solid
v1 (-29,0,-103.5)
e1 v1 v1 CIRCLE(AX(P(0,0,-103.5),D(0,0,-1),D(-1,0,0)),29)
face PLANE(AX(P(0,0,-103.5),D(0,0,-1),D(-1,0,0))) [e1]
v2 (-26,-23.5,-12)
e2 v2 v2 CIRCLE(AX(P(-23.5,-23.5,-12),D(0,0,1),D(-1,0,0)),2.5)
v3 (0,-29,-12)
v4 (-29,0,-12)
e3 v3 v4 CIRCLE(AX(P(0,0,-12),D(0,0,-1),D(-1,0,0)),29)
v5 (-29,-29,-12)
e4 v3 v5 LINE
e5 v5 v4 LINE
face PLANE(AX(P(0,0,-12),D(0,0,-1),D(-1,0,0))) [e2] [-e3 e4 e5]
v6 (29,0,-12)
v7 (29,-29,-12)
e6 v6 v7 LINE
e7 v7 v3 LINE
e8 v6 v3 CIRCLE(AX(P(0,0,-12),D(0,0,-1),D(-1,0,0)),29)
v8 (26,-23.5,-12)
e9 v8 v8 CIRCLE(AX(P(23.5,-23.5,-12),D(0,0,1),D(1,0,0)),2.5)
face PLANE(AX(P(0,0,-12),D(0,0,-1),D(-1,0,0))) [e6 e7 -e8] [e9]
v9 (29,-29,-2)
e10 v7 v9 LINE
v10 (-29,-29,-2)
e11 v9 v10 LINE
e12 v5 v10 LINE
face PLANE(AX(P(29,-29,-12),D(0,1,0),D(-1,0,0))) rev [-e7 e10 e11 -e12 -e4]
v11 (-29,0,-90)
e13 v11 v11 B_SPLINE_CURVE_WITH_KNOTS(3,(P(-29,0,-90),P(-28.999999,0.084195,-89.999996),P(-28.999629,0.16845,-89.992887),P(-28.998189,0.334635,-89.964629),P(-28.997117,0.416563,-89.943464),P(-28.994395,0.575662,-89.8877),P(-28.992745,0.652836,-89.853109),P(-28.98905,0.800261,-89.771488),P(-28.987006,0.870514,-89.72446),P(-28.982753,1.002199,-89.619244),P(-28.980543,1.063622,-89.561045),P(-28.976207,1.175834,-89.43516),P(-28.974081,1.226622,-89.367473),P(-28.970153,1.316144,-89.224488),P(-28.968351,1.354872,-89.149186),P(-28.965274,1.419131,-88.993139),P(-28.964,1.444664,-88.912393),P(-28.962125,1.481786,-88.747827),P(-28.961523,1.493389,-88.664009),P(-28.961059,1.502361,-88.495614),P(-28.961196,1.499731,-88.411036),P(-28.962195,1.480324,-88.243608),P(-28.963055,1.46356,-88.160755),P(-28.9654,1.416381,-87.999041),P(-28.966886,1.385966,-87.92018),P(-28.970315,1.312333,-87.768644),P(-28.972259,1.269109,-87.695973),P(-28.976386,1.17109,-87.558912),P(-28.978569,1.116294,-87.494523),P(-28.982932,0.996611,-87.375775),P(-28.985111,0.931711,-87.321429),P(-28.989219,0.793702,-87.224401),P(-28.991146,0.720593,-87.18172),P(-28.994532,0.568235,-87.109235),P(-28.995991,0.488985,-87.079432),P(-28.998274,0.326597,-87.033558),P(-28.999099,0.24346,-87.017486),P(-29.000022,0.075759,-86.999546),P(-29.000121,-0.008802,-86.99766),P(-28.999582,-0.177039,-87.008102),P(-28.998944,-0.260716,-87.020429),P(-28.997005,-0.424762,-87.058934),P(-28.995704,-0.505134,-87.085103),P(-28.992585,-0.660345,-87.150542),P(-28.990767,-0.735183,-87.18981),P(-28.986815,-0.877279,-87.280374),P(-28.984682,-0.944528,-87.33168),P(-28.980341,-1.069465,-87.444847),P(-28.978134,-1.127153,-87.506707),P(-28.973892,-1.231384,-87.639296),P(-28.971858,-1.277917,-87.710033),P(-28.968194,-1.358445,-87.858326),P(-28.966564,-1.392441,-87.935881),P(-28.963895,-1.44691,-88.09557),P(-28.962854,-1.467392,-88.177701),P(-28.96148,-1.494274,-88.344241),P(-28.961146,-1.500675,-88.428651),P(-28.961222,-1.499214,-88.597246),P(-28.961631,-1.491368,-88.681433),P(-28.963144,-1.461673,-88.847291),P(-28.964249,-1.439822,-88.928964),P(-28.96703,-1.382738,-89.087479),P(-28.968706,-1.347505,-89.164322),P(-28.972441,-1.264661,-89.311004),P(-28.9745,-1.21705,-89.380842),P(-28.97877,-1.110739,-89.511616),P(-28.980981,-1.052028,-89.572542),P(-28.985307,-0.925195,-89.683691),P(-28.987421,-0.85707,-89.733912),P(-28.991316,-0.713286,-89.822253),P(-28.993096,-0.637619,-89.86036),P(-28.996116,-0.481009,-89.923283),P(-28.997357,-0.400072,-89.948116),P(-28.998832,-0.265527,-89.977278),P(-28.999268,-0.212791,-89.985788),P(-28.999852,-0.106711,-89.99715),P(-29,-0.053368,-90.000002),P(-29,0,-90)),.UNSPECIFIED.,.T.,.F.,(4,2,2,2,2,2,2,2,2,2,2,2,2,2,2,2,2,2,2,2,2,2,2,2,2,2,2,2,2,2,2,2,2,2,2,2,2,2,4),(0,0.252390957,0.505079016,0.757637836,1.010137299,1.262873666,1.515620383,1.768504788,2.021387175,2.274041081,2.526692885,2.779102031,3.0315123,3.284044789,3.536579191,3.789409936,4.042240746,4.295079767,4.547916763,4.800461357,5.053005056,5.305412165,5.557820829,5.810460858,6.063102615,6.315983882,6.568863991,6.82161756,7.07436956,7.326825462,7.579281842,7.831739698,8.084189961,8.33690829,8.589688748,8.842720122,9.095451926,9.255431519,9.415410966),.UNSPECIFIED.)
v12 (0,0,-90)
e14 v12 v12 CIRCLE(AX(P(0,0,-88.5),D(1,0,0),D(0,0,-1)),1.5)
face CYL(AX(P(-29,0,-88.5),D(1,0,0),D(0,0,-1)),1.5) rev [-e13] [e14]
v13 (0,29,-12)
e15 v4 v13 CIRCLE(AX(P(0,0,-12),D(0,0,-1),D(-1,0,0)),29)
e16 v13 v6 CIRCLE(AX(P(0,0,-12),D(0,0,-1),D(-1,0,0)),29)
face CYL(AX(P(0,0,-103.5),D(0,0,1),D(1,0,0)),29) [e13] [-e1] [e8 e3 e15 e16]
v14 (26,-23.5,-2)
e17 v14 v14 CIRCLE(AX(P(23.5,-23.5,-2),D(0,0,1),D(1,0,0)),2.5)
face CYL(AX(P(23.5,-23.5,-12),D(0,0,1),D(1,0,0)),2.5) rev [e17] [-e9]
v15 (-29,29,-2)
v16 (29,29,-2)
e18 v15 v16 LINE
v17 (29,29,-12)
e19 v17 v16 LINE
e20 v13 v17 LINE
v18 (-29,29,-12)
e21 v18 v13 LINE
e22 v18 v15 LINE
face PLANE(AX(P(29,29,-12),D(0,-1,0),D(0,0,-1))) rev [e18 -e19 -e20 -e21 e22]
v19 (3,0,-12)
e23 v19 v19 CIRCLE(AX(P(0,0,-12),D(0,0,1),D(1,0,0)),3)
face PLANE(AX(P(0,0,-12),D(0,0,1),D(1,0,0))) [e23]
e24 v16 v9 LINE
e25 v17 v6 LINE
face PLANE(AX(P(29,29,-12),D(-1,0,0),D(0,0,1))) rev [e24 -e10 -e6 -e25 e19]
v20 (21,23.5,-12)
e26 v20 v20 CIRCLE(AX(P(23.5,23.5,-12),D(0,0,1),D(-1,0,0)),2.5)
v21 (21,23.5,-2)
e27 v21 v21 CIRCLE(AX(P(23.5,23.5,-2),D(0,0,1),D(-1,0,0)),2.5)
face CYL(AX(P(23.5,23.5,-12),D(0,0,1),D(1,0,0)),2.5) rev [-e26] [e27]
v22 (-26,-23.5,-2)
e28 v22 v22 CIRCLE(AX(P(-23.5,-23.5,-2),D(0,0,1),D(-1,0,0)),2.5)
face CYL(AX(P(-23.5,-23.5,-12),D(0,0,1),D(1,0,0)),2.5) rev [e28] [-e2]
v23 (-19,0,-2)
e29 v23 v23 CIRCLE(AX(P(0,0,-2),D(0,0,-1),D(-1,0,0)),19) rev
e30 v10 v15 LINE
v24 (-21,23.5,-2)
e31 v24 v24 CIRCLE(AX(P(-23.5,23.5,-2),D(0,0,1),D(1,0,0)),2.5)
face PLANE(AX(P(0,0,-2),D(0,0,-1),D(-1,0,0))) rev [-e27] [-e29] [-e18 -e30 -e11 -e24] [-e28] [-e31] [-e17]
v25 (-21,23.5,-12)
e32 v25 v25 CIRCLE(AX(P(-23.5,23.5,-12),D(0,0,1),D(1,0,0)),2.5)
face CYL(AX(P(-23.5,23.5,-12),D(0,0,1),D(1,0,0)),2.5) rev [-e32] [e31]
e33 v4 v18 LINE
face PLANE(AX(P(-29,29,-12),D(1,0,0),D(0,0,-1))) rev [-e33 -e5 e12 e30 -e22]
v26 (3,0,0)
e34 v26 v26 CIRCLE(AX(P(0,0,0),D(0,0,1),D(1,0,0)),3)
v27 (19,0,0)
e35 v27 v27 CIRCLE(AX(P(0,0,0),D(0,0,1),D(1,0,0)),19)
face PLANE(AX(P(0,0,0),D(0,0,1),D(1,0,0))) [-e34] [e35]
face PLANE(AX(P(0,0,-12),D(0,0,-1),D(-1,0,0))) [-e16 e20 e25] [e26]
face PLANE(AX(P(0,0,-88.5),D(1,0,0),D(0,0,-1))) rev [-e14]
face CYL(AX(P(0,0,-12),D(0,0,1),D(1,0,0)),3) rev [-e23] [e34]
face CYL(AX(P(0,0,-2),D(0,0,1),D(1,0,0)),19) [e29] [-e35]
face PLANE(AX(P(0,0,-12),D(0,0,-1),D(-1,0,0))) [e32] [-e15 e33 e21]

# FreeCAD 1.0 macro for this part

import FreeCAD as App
import Part
import Sketcher

V = App.Vector

doc = App.newDocument("Part")
params = doc.addObject("Spreadsheet::Sheet", "Params")
for row, (alias, value) in enumerate([
    ("sketch1_diameter", "38 mm"),
    ("pad1_length", "2 mm"),
    ("sketch2_width", "58 mm"),
    ("pad2_length", "10 mm"),
    ("sketch3_diameter", "58 mm"),
    ("pad3_length", "91.5 mm"),
    ("sketch4_diameter", "5 mm"),
    ("pocket1_length", "10 mm"),
    ("sketch5_diameter", "6 mm"),
    ("pocket2_length", "12 mm"),
    ("sketch6_diameter", "3 mm"),
], start=1):
    params.set(f"A{row}", alias)
    params.set(f"B{row}", "=" + value)
    params.setAlias(f"B{row}", alias)

body = doc.addObject("PartDesign::Body", "Body")

sketch1 = body.newObject("Sketcher::SketchObject", "Sketch")
sketch1.AttachmentSupport = (doc.getObject("XY_Plane"), [""])
sketch1.MapMode = "FlatFace"
sketch1.addGeometry(Part.Circle(V(0, 0, 0), V(0, 0, 1), 19), False)
sketch1.addConstraint([
    Sketcher.Constraint("Coincident", 0, 3, -1, 1),
    Sketcher.Constraint("Diameter", 0, 38.0),
])
sketch1.setExpression("Constraints[1]", "Params.sketch1_diameter")
pad1 = body.newObject("PartDesign::Pad", "Pad")
pad1.Profile = sketch1
pad1.setExpression("Length", "Params.pad1_length")
pad1.Reversed = True

sketch2 = body.newObject("Sketcher::SketchObject", "Sketch001")
sketch2.AttachmentSupport = (doc.getObject("XY_Plane"), [""])
sketch2.MapMode = "FlatFace"
sketch2.AttachmentOffset = App.Placement(V(0, 0, -2), App.Rotation())
sketch2.addGeometry([
    Part.LineSegment(V(29, 29, 0), V(29, -29, 0)),
    Part.LineSegment(V(29, -29, 0), V(-29, -29, 0)),
    Part.LineSegment(V(-29, -29, 0), V(-29, 29, 0)),
    Part.LineSegment(V(-29, 29, 0), V(29, 29, 0)),
], False)
sketch2.addConstraint([
    Sketcher.Constraint("Coincident", 0, 2, 1, 1),
    Sketcher.Constraint("Coincident", 1, 2, 2, 1),
    Sketcher.Constraint("Coincident", 2, 2, 3, 1),
    Sketcher.Constraint("Coincident", 3, 2, 0, 1),
    Sketcher.Constraint("Vertical", 0),
    Sketcher.Constraint("Horizontal", 1),
    Sketcher.Constraint("Vertical", 2),
    Sketcher.Constraint("Horizontal", 3),
    Sketcher.Constraint("Symmetric", 0, 2, 2, 2, -1, 1),
    Sketcher.Constraint("Equal", 3, 0),
    Sketcher.Constraint("DistanceX", 1, 2, 1, 1, 58.0),
])
sketch2.setExpression("Constraints[10]", "Params.sketch2_width")
pad2 = body.newObject("PartDesign::Pad", "Pad001")
pad2.Profile = sketch2
pad2.setExpression("Length", "Params.pad2_length")
pad2.Reversed = True

sketch3 = body.newObject("Sketcher::SketchObject", "Sketch002")
sketch3.AttachmentSupport = (doc.getObject("XY_Plane"), [""])
sketch3.MapMode = "FlatFace"
sketch3.AttachmentOffset = App.Placement(V(0, 0, -12), App.Rotation())
sketch3.addGeometry(Part.Circle(V(0, 0, 0), V(0, 0, 1), 29), False)
sketch3.addConstraint([
    Sketcher.Constraint("Coincident", 0, 3, -1, 1),
    Sketcher.Constraint("Diameter", 0, 58.0),
])
sketch3.setExpression("Constraints[1]", "Params.sketch3_diameter")
pad3 = body.newObject("PartDesign::Pad", "Pad002")
pad3.Profile = sketch3
pad3.setExpression("Length", "Params.pad3_length")
pad3.Reversed = True

sketch4 = body.newObject("Sketcher::SketchObject", "Sketch003")
sketch4.AttachmentSupport = (doc.getObject("XY_Plane"), [""])
sketch4.MapMode = "FlatFace"
sketch4.AttachmentOffset = App.Placement(V(0, 0, -2), App.Rotation())
sketch4.addGeometry([
    Part.Circle(V(-23.5, 23.5, 0), V(0, 0, 1), 2.5),
    Part.Circle(V(23.5, 23.5, 0), V(0, 0, 1), 2.5),
    Part.Circle(V(23.5, -23.5, 0), V(0, 0, 1), 2.5),
    Part.Circle(V(-23.5, -23.5, 0), V(0, 0, 1), 2.5),
], False)
sketch4.addConstraint([
    Sketcher.Constraint("Equal", 0, 1),
    Sketcher.Constraint("Equal", 1, 2),
    Sketcher.Constraint("Equal", 2, 3),
    Sketcher.Constraint("Symmetric", 0, 3, 2, 3, -1, 1),
    Sketcher.Constraint("Symmetric", 1, 3, 3, 3, -1, 1),
    Sketcher.Constraint("Symmetric", 0, 3, 1, 3, -2),
    Sketcher.Constraint("Diameter", 0, 5.0),
    Sketcher.Constraint("DistanceX", 0, 3, 1, 3, 47.0),
    Sketcher.Constraint("DistanceY", 2, 3, 1, 3, 47.0),
])
sketch4.setExpression("Constraints[6]", "Params.sketch4_diameter")
pocket1 = body.newObject("PartDesign::Pocket", "Pocket")
pocket1.Profile = sketch4
pocket1.setExpression("Length", "Params.pocket1_length")

sketch5 = body.newObject("Sketcher::SketchObject", "Sketch004")
sketch5.AttachmentSupport = (doc.getObject("XY_Plane"), [""])
sketch5.MapMode = "FlatFace"
sketch5.addGeometry(Part.Circle(V(0, 0, 0), V(0, 0, 1), 3), False)
sketch5.addConstraint([
    Sketcher.Constraint("Coincident", 0, 3, -1, 1),
    Sketcher.Constraint("Diameter", 0, 6.0),
])
sketch5.setExpression("Constraints[1]", "Params.sketch5_diameter")
pocket2 = body.newObject("PartDesign::Pocket", "Pocket001")
pocket2.Profile = sketch5
pocket2.setExpression("Length", "Params.pocket2_length")

sketch6 = body.newObject("Sketcher::SketchObject", "Sketch005")
sketch6.AttachmentSupport = (doc.getObject("YZ_Plane"), [""])
sketch6.MapMode = "FlatFace"
sketch6.addGeometry(Part.Circle(V(0, -88.5, 0), V(0, 0, 1), 1.5), False)
sketch6.addConstraint([
    Sketcher.Constraint("PointOnObject", 0, 3, -2),
    Sketcher.Constraint("Diameter", 0, 3.0),
    Sketcher.Constraint("DistanceY", 0, 3, -1, 1, 88.5),
])
sketch6.setExpression("Constraints[1]", "Params.sketch6_diameter")
pocket3 = body.newObject("PartDesign::Pocket", "Pocket002")
pocket3.Profile = sketch6
pocket3.Type = "ThroughAll"

doc.recompute()
